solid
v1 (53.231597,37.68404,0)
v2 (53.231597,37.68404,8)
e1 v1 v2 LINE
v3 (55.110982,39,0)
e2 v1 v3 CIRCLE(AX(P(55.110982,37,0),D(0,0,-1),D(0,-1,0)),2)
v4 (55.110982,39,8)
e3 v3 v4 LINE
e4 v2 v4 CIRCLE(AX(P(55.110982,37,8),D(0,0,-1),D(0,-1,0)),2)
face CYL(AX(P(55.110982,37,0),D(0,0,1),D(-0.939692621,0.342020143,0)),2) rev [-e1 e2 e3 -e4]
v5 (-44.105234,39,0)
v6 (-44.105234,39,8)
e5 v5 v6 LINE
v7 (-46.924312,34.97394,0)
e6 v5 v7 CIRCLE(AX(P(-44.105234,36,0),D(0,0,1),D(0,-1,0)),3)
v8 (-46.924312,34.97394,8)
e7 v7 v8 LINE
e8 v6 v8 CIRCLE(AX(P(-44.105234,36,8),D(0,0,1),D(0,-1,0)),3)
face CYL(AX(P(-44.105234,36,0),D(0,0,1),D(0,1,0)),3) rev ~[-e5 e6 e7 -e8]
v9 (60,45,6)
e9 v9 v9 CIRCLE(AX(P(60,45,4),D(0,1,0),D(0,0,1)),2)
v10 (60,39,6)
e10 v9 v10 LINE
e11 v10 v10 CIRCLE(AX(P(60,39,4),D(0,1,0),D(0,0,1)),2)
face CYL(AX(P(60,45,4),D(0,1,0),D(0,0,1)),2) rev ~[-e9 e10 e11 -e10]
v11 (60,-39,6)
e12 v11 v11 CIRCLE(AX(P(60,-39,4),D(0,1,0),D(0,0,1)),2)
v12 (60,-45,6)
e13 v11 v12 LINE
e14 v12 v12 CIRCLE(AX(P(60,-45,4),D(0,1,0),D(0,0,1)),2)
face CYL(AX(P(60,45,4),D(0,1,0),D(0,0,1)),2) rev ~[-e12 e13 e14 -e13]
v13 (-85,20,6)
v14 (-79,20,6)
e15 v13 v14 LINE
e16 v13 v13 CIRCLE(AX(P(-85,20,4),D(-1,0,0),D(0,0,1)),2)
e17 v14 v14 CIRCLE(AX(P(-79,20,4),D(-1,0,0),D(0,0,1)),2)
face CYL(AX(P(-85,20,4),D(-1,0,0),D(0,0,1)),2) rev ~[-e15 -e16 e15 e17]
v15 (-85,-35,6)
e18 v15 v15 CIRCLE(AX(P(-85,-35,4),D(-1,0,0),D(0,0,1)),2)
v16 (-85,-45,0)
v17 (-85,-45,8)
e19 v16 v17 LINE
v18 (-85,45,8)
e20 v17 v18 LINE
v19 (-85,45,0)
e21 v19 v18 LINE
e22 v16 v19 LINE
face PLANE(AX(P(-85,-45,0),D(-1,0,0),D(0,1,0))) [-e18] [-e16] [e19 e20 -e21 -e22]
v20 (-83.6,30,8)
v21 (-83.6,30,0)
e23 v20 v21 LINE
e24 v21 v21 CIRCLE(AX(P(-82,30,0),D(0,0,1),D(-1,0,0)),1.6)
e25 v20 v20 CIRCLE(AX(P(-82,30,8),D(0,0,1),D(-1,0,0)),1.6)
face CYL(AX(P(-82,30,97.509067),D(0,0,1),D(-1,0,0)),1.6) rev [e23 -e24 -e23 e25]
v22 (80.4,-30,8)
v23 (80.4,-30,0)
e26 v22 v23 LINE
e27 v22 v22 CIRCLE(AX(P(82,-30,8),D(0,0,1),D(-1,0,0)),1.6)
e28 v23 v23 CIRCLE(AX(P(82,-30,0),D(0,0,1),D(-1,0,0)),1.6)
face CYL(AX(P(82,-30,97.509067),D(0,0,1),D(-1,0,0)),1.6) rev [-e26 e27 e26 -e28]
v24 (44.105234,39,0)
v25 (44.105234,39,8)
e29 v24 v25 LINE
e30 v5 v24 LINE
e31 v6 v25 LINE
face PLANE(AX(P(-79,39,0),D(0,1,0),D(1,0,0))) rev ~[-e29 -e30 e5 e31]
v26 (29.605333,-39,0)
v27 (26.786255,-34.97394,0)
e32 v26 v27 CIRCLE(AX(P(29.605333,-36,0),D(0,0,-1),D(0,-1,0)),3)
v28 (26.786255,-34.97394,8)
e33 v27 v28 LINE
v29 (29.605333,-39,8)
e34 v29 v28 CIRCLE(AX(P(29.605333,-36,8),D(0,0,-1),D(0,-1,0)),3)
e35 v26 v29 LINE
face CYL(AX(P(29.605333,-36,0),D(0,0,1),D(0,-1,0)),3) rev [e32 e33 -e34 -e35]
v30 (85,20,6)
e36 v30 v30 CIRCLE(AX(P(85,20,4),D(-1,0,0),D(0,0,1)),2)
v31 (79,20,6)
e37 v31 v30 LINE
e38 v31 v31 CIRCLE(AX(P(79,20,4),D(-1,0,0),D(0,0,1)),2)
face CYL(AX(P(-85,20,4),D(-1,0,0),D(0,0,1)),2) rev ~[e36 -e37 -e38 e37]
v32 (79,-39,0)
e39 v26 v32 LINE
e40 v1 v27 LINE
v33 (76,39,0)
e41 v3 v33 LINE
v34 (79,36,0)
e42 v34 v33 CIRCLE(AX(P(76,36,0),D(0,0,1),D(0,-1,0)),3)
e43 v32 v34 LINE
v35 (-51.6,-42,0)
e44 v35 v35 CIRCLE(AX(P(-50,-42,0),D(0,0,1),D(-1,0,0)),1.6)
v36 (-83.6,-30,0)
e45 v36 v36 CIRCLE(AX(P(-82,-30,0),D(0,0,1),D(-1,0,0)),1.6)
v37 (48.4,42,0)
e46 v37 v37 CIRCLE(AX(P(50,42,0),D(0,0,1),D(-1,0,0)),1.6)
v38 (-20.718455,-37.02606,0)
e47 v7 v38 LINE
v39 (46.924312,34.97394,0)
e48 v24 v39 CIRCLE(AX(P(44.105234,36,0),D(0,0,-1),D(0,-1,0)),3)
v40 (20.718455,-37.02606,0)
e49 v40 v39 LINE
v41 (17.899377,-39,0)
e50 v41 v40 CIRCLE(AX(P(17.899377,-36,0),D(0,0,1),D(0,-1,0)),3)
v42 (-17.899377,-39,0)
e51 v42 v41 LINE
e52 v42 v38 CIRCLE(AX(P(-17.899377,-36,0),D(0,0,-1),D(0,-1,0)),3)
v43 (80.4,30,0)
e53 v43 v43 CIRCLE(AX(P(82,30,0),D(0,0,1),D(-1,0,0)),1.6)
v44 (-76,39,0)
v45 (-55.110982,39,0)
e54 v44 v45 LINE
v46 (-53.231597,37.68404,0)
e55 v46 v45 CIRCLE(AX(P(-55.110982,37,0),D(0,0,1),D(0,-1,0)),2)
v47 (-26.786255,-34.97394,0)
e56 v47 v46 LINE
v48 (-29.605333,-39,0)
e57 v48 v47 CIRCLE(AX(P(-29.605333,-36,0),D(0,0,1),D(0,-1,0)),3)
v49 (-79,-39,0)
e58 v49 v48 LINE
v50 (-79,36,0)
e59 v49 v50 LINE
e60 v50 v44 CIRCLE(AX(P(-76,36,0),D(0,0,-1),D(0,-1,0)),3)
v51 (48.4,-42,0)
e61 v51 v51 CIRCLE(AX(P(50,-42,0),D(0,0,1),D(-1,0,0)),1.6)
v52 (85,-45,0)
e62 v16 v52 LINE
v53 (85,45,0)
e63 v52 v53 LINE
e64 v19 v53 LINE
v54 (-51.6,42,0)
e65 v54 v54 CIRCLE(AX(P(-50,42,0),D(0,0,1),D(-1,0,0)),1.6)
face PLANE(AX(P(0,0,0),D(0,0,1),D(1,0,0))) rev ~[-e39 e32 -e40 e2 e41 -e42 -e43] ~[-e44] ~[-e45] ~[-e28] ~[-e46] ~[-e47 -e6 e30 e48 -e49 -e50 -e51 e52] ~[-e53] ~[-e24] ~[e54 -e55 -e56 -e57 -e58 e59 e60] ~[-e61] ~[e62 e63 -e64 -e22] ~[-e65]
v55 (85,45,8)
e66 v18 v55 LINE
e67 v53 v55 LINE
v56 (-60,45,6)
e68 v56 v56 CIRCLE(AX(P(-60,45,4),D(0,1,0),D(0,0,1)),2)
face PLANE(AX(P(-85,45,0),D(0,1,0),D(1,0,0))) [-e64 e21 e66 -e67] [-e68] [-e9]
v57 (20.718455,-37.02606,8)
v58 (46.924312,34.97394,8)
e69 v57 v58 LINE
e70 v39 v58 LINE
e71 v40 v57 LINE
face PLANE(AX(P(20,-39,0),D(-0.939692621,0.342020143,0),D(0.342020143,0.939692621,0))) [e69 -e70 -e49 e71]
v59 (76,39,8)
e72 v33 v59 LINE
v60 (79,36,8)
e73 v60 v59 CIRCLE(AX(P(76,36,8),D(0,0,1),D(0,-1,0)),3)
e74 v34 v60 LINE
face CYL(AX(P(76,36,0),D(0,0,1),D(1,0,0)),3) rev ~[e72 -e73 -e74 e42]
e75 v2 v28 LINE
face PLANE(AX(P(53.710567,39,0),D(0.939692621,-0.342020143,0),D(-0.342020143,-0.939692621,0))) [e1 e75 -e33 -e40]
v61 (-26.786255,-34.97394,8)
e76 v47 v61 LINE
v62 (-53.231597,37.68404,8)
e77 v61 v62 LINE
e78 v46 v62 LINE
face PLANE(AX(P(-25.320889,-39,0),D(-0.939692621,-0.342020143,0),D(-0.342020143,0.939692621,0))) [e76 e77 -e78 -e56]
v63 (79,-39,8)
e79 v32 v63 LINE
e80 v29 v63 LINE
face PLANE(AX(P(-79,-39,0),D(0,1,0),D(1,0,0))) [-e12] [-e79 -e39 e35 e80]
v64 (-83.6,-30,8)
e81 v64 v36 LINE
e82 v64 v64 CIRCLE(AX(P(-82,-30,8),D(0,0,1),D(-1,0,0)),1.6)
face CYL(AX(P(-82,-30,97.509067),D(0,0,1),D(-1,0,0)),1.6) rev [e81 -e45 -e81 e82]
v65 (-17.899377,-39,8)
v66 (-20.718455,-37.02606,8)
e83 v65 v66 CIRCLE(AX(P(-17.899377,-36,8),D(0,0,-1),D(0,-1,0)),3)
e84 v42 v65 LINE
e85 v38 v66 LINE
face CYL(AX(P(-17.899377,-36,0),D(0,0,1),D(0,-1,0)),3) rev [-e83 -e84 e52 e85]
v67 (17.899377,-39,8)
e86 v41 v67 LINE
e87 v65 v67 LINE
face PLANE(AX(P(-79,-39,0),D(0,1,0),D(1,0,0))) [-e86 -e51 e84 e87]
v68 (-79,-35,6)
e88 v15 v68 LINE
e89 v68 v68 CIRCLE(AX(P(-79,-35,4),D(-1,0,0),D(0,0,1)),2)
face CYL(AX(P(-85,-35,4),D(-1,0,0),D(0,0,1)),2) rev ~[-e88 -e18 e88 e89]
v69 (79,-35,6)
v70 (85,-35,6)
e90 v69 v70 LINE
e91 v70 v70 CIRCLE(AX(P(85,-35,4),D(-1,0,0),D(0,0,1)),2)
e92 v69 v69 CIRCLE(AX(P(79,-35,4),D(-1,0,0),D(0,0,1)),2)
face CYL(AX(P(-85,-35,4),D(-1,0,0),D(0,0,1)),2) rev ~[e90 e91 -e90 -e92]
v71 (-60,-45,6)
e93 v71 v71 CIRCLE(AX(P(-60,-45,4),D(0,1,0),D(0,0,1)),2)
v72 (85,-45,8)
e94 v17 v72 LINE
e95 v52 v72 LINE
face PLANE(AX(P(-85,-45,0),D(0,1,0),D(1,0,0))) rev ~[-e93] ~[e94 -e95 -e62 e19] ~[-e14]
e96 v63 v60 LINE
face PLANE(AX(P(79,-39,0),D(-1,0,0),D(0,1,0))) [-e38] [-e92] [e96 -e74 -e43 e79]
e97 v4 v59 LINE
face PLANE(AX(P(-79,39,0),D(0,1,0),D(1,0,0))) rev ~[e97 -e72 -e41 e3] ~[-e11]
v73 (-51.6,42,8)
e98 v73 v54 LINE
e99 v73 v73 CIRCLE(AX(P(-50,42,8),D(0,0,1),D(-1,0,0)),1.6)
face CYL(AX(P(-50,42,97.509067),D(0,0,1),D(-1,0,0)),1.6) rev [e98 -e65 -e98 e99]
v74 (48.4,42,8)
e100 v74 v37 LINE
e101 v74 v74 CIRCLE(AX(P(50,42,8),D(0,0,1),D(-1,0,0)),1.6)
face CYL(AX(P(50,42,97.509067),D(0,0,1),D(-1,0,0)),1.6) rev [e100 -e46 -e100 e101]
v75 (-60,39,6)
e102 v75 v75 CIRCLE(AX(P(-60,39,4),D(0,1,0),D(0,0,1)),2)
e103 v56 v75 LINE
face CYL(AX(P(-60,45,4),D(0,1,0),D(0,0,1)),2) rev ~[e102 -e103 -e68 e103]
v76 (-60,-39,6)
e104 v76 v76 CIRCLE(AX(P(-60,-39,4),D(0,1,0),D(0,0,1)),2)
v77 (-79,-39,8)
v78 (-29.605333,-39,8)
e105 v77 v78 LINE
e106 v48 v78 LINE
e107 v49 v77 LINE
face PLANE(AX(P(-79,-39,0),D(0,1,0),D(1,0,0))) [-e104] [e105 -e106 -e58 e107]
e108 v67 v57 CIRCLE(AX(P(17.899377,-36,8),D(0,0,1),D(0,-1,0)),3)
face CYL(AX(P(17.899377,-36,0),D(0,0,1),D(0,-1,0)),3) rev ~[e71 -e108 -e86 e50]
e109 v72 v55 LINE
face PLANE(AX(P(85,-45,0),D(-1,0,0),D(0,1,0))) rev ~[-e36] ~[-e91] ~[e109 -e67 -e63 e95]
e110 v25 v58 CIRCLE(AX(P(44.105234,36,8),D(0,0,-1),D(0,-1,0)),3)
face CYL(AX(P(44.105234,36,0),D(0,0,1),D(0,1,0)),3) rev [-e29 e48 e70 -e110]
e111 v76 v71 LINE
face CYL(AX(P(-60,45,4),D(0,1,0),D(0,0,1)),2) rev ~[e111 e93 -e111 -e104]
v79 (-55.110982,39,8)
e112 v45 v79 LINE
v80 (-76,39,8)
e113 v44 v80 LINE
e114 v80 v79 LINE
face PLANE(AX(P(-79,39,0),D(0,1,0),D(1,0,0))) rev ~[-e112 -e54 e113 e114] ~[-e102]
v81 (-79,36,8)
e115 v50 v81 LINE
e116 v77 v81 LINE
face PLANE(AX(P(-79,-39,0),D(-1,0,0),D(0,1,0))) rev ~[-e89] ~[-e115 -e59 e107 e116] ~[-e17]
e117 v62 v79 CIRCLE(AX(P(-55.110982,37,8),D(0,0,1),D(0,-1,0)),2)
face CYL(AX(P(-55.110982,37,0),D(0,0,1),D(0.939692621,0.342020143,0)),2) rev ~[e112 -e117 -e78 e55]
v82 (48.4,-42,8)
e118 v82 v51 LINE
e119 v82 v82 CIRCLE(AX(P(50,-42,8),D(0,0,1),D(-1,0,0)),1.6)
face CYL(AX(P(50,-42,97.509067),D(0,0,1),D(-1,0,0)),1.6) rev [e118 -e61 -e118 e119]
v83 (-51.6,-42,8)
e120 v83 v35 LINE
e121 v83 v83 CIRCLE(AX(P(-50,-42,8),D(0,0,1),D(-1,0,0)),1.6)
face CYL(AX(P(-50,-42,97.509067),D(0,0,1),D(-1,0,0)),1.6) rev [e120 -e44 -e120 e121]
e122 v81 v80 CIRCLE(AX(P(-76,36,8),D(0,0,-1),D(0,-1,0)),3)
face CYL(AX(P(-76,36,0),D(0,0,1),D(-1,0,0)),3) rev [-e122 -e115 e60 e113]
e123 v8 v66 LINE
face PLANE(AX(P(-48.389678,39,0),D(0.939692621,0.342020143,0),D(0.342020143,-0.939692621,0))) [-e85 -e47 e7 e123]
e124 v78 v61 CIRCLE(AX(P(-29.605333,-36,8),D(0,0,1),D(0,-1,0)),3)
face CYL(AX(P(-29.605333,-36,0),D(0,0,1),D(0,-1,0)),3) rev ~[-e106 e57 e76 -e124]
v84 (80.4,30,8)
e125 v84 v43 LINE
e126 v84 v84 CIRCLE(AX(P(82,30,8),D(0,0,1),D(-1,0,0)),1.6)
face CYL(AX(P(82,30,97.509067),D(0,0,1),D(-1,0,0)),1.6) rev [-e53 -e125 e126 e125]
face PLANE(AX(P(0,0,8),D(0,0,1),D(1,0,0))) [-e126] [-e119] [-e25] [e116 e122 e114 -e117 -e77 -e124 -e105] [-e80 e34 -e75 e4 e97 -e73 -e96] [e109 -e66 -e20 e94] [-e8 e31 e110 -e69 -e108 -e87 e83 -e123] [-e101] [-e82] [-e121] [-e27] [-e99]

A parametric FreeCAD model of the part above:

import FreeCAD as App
import Part
import Sketcher
from FreeCAD import Vector
Q = App.Units.Quantity


def edges_at(feature, points):
    """Names of the edges that pass closest to the given points."""
    edges = feature.Shape.Edges
    near = lambda p: min(range(len(edges)), key=lambda i: edges[i].distToShape(Part.Vertex(*p))[0])
    return sorted({f"Edge{near(p) + 1}" for p in points})


def add_polygon(sketch, points):
    """Adds a closed chain of lines whose ends are joined by coincident constraints."""
    first, n = sketch.GeometryCount, len(points)
    for a, b in zip(points, points[1:] + points[:1]):
        sketch.addGeometry(Part.LineSegment(App.Vector(*a, 0), App.Vector(*b, 0)), False)
    for i in range(n):
        sketch.addConstraint(Sketcher.Constraint("Coincident", first + i, 2, first + (i + 1) % n, 1))

doc = App.newDocument("Part")
body = doc.addObject("PartDesign::Body", "Body")

# Sketch on XY plane
sketch1 = body.newObject("Sketcher::SketchObject", "Sketch")
sketch1.AttachmentSupport = (doc.getObject("XY_Plane"), [""])
sketch1.MapMode = "FlatFace"
add_polygon(sketch1, [(-85, 45), (-85, -45), (85, -45), (85, 45)])  # lines 0-3
add_polygon(sketch1, [(79, -39), (-79, -39), (-79, 39), (79, 39)])  # lines 4-7
sketch1.addConstraint([
    Sketcher.Constraint("Vertical", 0),
    Sketcher.Constraint("Horizontal", 1),
    Sketcher.Constraint("Vertical", 2),
    Sketcher.Constraint("Horizontal", 3),
    Sketcher.Constraint("Horizontal", 4),
    Sketcher.Constraint("Vertical", 5),
    Sketcher.Constraint("Horizontal", 6),
    Sketcher.Constraint("Vertical", 7),
    Sketcher.Constraint("Symmetric", 0, 2, 2, 2, -1, 1),
    Sketcher.Constraint("Symmetric", 4, 2, 6, 2, -1, 1),
    Sketcher.Constraint("DistanceX", 1, 1, 1, 2, 170.0),
    Sketcher.Constraint("DistanceX", 4, 2, 4, 1, 158.0),
    Sketcher.Constraint("DistanceY", 0, 2, 0, 1, 90.0),
    Sketcher.Constraint("DistanceY", 5, 1, 5, 2, 78.0),
])
pad1 = body.newObject("PartDesign::Pad", "Pad")
pad1.Profile = sketch1
pad1.Length = 8

# Sketch on YZ plane
sketch2 = body.newObject("Sketcher::SketchObject", "Sketch001")
sketch2.AttachmentSupport = (doc.getObject("YZ_Plane"), [""])
sketch2.MapMode = "FlatFace"
sketch2.AttachmentOffset = App.Placement(Vector(0, 0, -85), App.Rotation())
sketch2.addGeometry([
    Part.Circle(Vector(20, 4, 0), Vector(0, 0, 1), 2),
    Part.Circle(Vector(-35, 4, 0), Vector(0, 0, 1), 2),
], False)
sketch2.addConstraint([
    Sketcher.Constraint("Equal", 0, 1),
    Sketcher.Constraint("Horizontal", 0, 3, 1, 3),
    Sketcher.Constraint("Diameter", 0, 4.0),
    Sketcher.Constraint("DistanceX", -1, 1, 0, 3, 20.0),
    Sketcher.Constraint("DistanceY", -1, 1, 0, 3, 4.0),
    Sketcher.Constraint("DistanceX", 1, 3, -1, 1, 35.0),
])
pocket1 = body.newObject("PartDesign::Pocket", "Pocket")
pocket1.Profile = sketch2
pocket1.Type = "ThroughAll"
pocket1.Reversed = True

# Sketch on XZ plane
sketch3 = body.newObject("Sketcher::SketchObject", "Sketch002")
sketch3.AttachmentSupport = (doc.getObject("XZ_Plane"), [""])
sketch3.MapMode = "FlatFace"
sketch3.AttachmentOffset = App.Placement(Vector(0, 0, -45), App.Rotation())
sketch3.addGeometry([
    Part.Circle(Vector(-60, 4, 0), Vector(0, 0, 1), 2),
    Part.Circle(Vector(60, 4, 0), Vector(0, 0, 1), 2),
], False)
sketch3.addConstraint([
    Sketcher.Constraint("Equal", 0, 1),
    Sketcher.Constraint("Symmetric", 0, 3, 1, 3, -2),
    Sketcher.Constraint("Diameter", 0, 4.0),
    Sketcher.Constraint("DistanceX", 0, 3, -1, 1, 60.0),
    Sketcher.Constraint("DistanceY", -1, 1, 0, 3, 4.0),
])
pocket2 = body.newObject("PartDesign::Pocket", "Pocket001")
pocket2.Profile = sketch3
pocket2.Type = "ThroughAll"
pocket2.Reversed = True

# Sketch on XY plane
sketch4 = body.newObject("Sketcher::SketchObject", "Sketch003")
sketch4.AttachmentSupport = (doc.getObject("XY_Plane"), [""])
sketch4.MapMode = "FlatFace"
sketch4.addGeometry([
    Part.Circle(Vector(82, 30, 0), Vector(0, 0, 1), 1.6),  # 0
    Part.Circle(Vector(82, -30, 0), Vector(0, 0, 1), 1.6),  # 1
    Part.Circle(Vector(-82, 30, 0), Vector(0, 0, 1), 1.6),  # 2
    Part.Circle(Vector(-82, -30, 0), Vector(0, 0, 1), 1.6),  # 3
    Part.Circle(Vector(50, 42, 0), Vector(0, 0, 1), 1.6),  # 4
    Part.Circle(Vector(-50, 42, 0), Vector(0, 0, 1), 1.6),  # 5
    Part.Circle(Vector(50, -42, 0), Vector(0, 0, 1), 1.6),  # 6
    Part.Circle(Vector(-50, -42, 0), Vector(0, 0, 1), 1.6),  # 7
], False)
sketch4.addConstraint([
    Sketcher.Constraint("Equal", 0, 1),
    Sketcher.Constraint("Equal", 1, 2),
    Sketcher.Constraint("Equal", 2, 3),
    Sketcher.Constraint("Equal", 3, 4),
    Sketcher.Constraint("Equal", 4, 5),
    Sketcher.Constraint("Equal", 5, 6),
    Sketcher.Constraint("Equal", 6, 7),
    Sketcher.Constraint("Symmetric", 1, 3, 2, 3, -1, 1),
    Sketcher.Constraint("Symmetric", 0, 3, 3, 3, -1, 1),
    Sketcher.Constraint("Symmetric", 5, 3, 6, 3, -1, 1),
    Sketcher.Constraint("Symmetric", 4, 3, 7, 3, -1, 1),
    Sketcher.Constraint("Symmetric", 0, 3, 2, 3, -2),
    Sketcher.Constraint("Symmetric", 4, 3, 5, 3, -2),
    Sketcher.Constraint("Diameter", 0, 3.2),
    Sketcher.Constraint("DistanceX", -1, 1, 0, 3, 82.0),
    Sketcher.Constraint("DistanceY", -1, 1, 0, 3, 30.0),
    Sketcher.Constraint("DistanceX", -1, 1, 4, 3, 50.0),
    Sketcher.Constraint("DistanceY", -1, 1, 4, 3, 42.0),
])
pocket3 = body.newObject("PartDesign::Pocket", "Pocket002")
pocket3.Profile = sketch4
pocket3.Type = "ThroughAll"
pocket3.Midplane = True

# Sketch on XY plane
sketch5 = body.newObject("Sketcher::SketchObject", "Sketch004")
sketch5.AttachmentSupport = (doc.getObject("XY_Plane"), [""])
sketch5.MapMode = "FlatFace"
add_polygon(sketch5, [(54, 39), (25, -39), (20, -39), (48, 39)])  # lines 0-3
add_polygon(sketch5, [(-54, 39), (-48, 39), (-20, -39), (-25, -39)])  # lines 4-7
sketch5.addConstraint([
    Sketcher.Constraint("Horizontal", 1),
    Sketcher.Constraint("Horizontal", 3),
    Sketcher.Constraint("Horizontal", 4),
    Sketcher.Constraint("Horizontal", 6),
    Sketcher.Constraint("Symmetric", 2, 2, 4, 2, -2),
    Sketcher.Constraint("Symmetric", 1, 2, 5, 2, -2),
    Sketcher.Constraint("Parallel", 0, 2),
    Sketcher.Constraint("Parallel", 5, 7),
    Sketcher.Constraint("Equal", 3, 4),
    Sketcher.Constraint("Angle", 0, Q("-110 deg")),
    Sketcher.Constraint("DistanceY", 0, 2, -1, 1, 39.0),
    Sketcher.Constraint("DistanceX", -1, 1, 1, 2, 20.0),
    Sketcher.Constraint("DistanceY", -1, 1, 2, 2, 39.0),
    Sketcher.Constraint("DistanceX", 1, 2, 1, 1, 5.320889),
])
pad2 = body.newObject("PartDesign::Pad", "Pad001")
pad2.Profile = sketch5
pad2.Length = 8
doc.recompute()

fillet = body.newObject("PartDesign::Fillet", "Fillet")
fillet.Base = (pad2, edges_at(pad2, [
    (25.321, -39, 4),
    (20, -39, 4),
    (48.39, 39, 4),
    (-48.39, 39, 4),
    (-20, -39, 4),
    (-25.321, -39, 4),
    (79, 39, 4),
    (-79, 39, 4),
]))
fillet.Radius = 3
doc.recompute()

fillet2 = body.newObject("PartDesign::Fillet", "Fillet001")
fillet2.Base = (fillet, edges_at(fillet, [(53.711, 39, 4), (-53.711, 39, 4)]))
fillet2.Radius = 2

doc.recompute()
